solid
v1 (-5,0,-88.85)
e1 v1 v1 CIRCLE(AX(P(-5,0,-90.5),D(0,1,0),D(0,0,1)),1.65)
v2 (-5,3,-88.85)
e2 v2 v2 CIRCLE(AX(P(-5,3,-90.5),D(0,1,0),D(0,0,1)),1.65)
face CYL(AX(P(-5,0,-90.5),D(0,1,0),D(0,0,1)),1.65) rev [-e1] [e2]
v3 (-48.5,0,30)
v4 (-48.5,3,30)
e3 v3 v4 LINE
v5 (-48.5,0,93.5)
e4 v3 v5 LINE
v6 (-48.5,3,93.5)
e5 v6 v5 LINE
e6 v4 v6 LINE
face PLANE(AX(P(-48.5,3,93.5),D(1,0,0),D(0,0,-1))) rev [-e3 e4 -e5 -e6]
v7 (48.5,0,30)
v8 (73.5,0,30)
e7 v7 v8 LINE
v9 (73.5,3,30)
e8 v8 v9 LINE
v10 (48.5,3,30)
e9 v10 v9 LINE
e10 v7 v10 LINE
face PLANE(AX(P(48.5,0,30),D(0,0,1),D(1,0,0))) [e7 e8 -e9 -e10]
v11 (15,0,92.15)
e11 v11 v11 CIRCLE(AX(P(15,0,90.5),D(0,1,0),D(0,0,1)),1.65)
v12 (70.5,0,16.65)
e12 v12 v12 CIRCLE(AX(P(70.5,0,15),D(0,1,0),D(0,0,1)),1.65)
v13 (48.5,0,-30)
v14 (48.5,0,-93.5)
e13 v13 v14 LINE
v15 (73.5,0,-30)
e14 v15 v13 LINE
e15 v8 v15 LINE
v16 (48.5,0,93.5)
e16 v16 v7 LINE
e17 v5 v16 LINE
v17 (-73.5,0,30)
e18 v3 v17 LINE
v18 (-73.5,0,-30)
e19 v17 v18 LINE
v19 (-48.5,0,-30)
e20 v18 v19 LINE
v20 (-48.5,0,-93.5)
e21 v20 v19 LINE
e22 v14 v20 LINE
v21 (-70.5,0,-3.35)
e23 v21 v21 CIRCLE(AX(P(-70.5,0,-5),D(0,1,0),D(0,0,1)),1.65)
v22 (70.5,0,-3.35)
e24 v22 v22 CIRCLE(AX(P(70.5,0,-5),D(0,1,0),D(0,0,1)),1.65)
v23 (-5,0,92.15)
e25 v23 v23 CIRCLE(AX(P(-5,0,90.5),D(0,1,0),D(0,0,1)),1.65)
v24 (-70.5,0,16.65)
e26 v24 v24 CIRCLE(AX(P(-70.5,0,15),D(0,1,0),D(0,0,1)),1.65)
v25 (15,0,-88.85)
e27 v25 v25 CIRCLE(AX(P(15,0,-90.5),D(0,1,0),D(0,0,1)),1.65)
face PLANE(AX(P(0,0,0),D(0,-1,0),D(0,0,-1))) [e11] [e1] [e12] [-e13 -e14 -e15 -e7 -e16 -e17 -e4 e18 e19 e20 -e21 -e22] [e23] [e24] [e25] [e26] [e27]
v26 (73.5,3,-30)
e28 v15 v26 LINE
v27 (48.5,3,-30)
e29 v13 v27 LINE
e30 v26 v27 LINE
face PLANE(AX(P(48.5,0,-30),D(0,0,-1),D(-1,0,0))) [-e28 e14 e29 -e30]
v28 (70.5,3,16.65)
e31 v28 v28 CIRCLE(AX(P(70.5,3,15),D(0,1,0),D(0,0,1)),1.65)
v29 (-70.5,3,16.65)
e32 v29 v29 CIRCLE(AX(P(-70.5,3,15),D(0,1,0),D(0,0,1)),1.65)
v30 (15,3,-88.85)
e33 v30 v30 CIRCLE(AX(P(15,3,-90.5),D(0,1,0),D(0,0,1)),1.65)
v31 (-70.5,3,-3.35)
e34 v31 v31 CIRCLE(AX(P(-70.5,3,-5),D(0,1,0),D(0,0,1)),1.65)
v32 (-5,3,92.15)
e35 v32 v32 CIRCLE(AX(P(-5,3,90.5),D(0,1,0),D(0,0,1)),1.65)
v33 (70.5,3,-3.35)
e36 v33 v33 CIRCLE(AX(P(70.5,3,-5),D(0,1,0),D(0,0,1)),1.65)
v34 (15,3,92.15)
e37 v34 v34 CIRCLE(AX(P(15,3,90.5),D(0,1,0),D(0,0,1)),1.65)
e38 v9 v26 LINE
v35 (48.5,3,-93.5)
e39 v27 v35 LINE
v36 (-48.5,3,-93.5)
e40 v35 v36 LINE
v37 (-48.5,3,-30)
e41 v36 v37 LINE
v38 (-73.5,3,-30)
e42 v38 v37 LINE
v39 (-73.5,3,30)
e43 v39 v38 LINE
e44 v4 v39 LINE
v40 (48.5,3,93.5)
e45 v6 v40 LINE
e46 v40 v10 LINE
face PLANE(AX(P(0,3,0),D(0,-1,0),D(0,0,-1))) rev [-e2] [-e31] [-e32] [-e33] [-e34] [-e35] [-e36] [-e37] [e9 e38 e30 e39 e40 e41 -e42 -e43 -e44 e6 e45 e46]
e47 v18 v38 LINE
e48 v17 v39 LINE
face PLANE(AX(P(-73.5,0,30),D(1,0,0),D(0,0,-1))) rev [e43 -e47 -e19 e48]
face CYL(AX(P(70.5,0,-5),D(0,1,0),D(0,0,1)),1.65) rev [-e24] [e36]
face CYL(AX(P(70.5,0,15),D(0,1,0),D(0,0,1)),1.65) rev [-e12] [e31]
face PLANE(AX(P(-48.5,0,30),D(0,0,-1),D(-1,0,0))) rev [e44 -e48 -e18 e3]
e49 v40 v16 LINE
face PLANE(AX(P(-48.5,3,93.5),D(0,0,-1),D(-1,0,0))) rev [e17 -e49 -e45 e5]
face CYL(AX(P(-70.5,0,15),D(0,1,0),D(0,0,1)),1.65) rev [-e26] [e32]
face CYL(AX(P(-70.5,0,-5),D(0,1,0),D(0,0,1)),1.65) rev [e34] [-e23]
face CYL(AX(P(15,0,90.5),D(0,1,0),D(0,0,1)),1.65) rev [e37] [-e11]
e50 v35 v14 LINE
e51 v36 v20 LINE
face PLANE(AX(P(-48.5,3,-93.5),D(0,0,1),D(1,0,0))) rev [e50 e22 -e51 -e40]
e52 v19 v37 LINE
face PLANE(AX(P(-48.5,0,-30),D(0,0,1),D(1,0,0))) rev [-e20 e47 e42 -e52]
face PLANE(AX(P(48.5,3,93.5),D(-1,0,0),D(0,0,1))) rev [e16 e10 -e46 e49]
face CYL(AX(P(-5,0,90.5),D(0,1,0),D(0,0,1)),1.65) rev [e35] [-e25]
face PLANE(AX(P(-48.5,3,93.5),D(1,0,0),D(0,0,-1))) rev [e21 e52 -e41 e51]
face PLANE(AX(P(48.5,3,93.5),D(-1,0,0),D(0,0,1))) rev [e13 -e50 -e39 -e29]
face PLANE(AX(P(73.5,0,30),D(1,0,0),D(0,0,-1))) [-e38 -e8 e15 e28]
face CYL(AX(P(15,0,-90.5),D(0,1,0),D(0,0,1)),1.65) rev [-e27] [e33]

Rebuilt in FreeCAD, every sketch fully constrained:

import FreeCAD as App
import Part
import Sketcher
from FreeCAD import Vector
Q = App.Units.Quantity


def add_polygon(sketch, points):
    """Adds a closed chain of lines whose ends are joined by coincident constraints."""
    first, n = sketch.GeometryCount, len(points)
    for a, b in zip(points, points[1:] + points[:1]):
        sketch.addGeometry(Part.LineSegment(App.Vector(*a, 0), App.Vector(*b, 0)), False)
    for i in range(n):
        sketch.addConstraint(Sketcher.Constraint("Coincident", first + i, 2, first + (i + 1) % n, 1))

doc = App.newDocument("Part")
params = doc.addObject("Spreadsheet::Sheet", "Params")
for row, (alias, value) in enumerate([
    ("sketch1_width", "97 mm"),
    ("sketch1_height", "187 mm"),
    ("pad1_length", "3 mm"),
    ("sketch2_width", "25 mm"),
    ("sketch2_height", "60 mm"),
    ("pad2_length", "3 mm"),
    ("sketch3_diameter", "3.3 mm"),
    ("pocket1_length", "3 mm"),
], start=1):
    params.set(f"A{row}", alias)
    params.set(f"B{row}", "=" + value)
    params.setAlias(f"B{row}", alias)

body = doc.addObject("PartDesign::Body", "Body")

# Sketch on XZ plane
sketch1 = doc.addObject("Sketcher::SketchObject", "Sketch")
body.addObject(sketch1)
sketch1.AttachmentSupport = (doc.XZ_Plane, [""])
sketch1.MapMode = "FlatFace"
add_polygon(sketch1, [(-48, -94), (-48, 94), (48, 94), (48, -94)])  # lines 0-3
sketch1.addConstraint(Sketcher.Constraint("Vertical", 0))
sketch1.addConstraint(Sketcher.Constraint("Horizontal", 1))
sketch1.addConstraint(Sketcher.Constraint("Vertical", 2))
sketch1.addConstraint(Sketcher.Constraint("Horizontal", 3))
sketch1.addConstraint(Sketcher.Constraint("Symmetric", 0, 2, 2, 2, -1, 1))
sketch1.addConstraint(Sketcher.Constraint("DistanceX", 1, 1, 1, 2, Q("97 mm")))
sketch1.addConstraint(Sketcher.Constraint("DistanceY", 0, 1, 0, 2, Q("187 mm")))
sketch1.setExpression("Constraints[9]", "Params.sketch1_width")
sketch1.setExpression("Constraints[10]", "Params.sketch1_height")
pad1 = doc.addObject("PartDesign::Pad", "Pad")
body.addObject(pad1)
pad1.Profile = sketch1
pad1.setExpression("Length", "Params.pad1_length")
pad1.Reversed = True

# Sketch on XZ plane
sketch2 = doc.addObject("Sketcher::SketchObject", "Sketch001")
body.addObject(sketch2)
sketch2.AttachmentSupport = (doc.XZ_Plane, [""])
sketch2.MapMode = "FlatFace"
sketch2.AttachmentOffset = App.Placement(Vector(0, 0, -3), App.Rotation())
add_polygon(sketch2, [(48, -30), (48, 30), (74, 30), (74, -30)])  # lines 0-3
sketch2.addConstraint(Sketcher.Constraint("Vertical", 0))
sketch2.addConstraint(Sketcher.Constraint("Horizontal", 1))
sketch2.addConstraint(Sketcher.Constraint("Vertical", 2))
sketch2.addConstraint(Sketcher.Constraint("Horizontal", 3))
sketch2.addConstraint(Sketcher.Constraint("DistanceX", 1, 1, 1, 2, Q("25 mm")))
sketch2.addConstraint(Sketcher.Constraint("DistanceY", 0, 1, 0, 2, Q("60 mm")))
sketch2.addConstraint(Sketcher.Constraint("DistanceY", -1, 1, 0, 2, Q("30 mm")))
sketch2.addConstraint(Sketcher.Constraint("DistanceX", -1, 1, 0, 2, Q("48.5 mm")))
sketch2.setExpression("Constraints[8]", "Params.sketch2_width")
sketch2.setExpression("Constraints[9]", "Params.sketch2_height")
pad2 = doc.addObject("PartDesign::Pad", "Pad001")
body.addObject(pad2)
pad2.Profile = sketch2
pad2.setExpression("Length", "Params.pad2_length")
doc.recompute()

mirrored = doc.addObject("PartDesign::Mirrored", "Mirrored")
body.addObject(mirrored)
mirrored.Originals = [pad2]
mirrored.MirrorPlane = (doc.YZ_Plane, [""])
body.Tip = mirrored

# Sketch on XZ plane
sketch3 = doc.addObject("Sketcher::SketchObject", "Sketch002")
body.addObject(sketch3)
sketch3.AttachmentSupport = (doc.XZ_Plane, [""])
sketch3.MapMode = "FlatFace"
sketch3.AttachmentOffset = App.Placement(Vector(0, 0, -3), App.Rotation())
sketch3.addGeometry(Part.Circle(Vector(-5, 90.5, 0), Vector(0, 0, 1), 1.6), False)
sketch3.addGeometry(Part.Circle(Vector(15, 90.5, 0), Vector(0, 0, 1), 1.6), False)
sketch3.addGeometry(Part.Circle(Vector(70.5, 15, 0), Vector(0, 0, 1), 1.6), False)
sketch3.addGeometry(Part.Circle(Vector(70.5, -5, 0), Vector(0, 0, 1), 1.6), False)
sketch3.addGeometry(Part.Circle(Vector(15, -90.5, 0), Vector(0, 0, 1), 1.6), False)
sketch3.addGeometry(Part.Circle(Vector(-5, -90.5, 0), Vector(0, 0, 1), 1.6), False)
sketch3.addGeometry(Part.Circle(Vector(-70.5, 15, 0), Vector(0, 0, 1), 1.6), False)
sketch3.addGeometry(Part.Circle(Vector(-70.5, -5, 0), Vector(0, 0, 1), 1.6), False)
sketch3.addConstraint(Sketcher.Constraint("Equal", 0, 1))
sketch3.addConstraint(Sketcher.Constraint("Equal", 1, 2))
sketch3.addConstraint(Sketcher.Constraint("Equal", 2, 3))
sketch3.addConstraint(Sketcher.Constraint("Equal", 3, 4))
sketch3.addConstraint(Sketcher.Constraint("Equal", 4, 5))
sketch3.addConstraint(Sketcher.Constraint("Equal", 5, 6))
sketch3.addConstraint(Sketcher.Constraint("Equal", 6, 7))
sketch3.addConstraint(Sketcher.Constraint("Symmetric", 2, 3, 6, 3, -2))
sketch3.addConstraint(Sketcher.Constraint("Symmetric", 3, 3, 7, 3, -2))
sketch3.addConstraint(Sketcher.Constraint("Symmetric", 1, 3, 4, 3, -1))
sketch3.addConstraint(Sketcher.Constraint("Symmetric", 0, 3, 5, 3, -1))
sketch3.addConstraint(Sketcher.Constraint("Horizontal", 0, 3, 1, 3))
sketch3.addConstraint(Sketcher.Constraint("Vertical", 2, 3, 3, 3))
sketch3.addConstraint(Sketcher.Constraint("Diameter", 0, Q("3.3 mm")))
sketch3.addConstraint(Sketcher.Constraint("DistanceX", 0, 3, -1, 1, Q("5 mm")))
sketch3.addConstraint(Sketcher.Constraint("DistanceX", -1, 1, 1, 3, Q("15 mm")))
sketch3.addConstraint(Sketcher.Constraint("DistanceY", -1, 1, 2, 3, Q("15 mm")))
sketch3.addConstraint(Sketcher.Constraint("DistanceY", 3, 3, -1, 1, Q("5 mm")))
sketch3.addConstraint(Sketcher.Constraint("DistanceY", 4, 3, 1, 3, Q("181 mm")))
sketch3.addConstraint(Sketcher.Constraint("DistanceX", 6, 3, 2, 3, Q("141 mm")))
sketch3.setExpression("Constraints[13]", "Params.sketch3_diameter")
pocket1 = doc.addObject("PartDesign::Pocket", "Pocket")
body.addObject(pocket1)
pocket1.Profile = sketch3
pocket1.setExpression("Length", "Params.pocket1_length")
pocket1.Reversed = True

doc.recompute()
